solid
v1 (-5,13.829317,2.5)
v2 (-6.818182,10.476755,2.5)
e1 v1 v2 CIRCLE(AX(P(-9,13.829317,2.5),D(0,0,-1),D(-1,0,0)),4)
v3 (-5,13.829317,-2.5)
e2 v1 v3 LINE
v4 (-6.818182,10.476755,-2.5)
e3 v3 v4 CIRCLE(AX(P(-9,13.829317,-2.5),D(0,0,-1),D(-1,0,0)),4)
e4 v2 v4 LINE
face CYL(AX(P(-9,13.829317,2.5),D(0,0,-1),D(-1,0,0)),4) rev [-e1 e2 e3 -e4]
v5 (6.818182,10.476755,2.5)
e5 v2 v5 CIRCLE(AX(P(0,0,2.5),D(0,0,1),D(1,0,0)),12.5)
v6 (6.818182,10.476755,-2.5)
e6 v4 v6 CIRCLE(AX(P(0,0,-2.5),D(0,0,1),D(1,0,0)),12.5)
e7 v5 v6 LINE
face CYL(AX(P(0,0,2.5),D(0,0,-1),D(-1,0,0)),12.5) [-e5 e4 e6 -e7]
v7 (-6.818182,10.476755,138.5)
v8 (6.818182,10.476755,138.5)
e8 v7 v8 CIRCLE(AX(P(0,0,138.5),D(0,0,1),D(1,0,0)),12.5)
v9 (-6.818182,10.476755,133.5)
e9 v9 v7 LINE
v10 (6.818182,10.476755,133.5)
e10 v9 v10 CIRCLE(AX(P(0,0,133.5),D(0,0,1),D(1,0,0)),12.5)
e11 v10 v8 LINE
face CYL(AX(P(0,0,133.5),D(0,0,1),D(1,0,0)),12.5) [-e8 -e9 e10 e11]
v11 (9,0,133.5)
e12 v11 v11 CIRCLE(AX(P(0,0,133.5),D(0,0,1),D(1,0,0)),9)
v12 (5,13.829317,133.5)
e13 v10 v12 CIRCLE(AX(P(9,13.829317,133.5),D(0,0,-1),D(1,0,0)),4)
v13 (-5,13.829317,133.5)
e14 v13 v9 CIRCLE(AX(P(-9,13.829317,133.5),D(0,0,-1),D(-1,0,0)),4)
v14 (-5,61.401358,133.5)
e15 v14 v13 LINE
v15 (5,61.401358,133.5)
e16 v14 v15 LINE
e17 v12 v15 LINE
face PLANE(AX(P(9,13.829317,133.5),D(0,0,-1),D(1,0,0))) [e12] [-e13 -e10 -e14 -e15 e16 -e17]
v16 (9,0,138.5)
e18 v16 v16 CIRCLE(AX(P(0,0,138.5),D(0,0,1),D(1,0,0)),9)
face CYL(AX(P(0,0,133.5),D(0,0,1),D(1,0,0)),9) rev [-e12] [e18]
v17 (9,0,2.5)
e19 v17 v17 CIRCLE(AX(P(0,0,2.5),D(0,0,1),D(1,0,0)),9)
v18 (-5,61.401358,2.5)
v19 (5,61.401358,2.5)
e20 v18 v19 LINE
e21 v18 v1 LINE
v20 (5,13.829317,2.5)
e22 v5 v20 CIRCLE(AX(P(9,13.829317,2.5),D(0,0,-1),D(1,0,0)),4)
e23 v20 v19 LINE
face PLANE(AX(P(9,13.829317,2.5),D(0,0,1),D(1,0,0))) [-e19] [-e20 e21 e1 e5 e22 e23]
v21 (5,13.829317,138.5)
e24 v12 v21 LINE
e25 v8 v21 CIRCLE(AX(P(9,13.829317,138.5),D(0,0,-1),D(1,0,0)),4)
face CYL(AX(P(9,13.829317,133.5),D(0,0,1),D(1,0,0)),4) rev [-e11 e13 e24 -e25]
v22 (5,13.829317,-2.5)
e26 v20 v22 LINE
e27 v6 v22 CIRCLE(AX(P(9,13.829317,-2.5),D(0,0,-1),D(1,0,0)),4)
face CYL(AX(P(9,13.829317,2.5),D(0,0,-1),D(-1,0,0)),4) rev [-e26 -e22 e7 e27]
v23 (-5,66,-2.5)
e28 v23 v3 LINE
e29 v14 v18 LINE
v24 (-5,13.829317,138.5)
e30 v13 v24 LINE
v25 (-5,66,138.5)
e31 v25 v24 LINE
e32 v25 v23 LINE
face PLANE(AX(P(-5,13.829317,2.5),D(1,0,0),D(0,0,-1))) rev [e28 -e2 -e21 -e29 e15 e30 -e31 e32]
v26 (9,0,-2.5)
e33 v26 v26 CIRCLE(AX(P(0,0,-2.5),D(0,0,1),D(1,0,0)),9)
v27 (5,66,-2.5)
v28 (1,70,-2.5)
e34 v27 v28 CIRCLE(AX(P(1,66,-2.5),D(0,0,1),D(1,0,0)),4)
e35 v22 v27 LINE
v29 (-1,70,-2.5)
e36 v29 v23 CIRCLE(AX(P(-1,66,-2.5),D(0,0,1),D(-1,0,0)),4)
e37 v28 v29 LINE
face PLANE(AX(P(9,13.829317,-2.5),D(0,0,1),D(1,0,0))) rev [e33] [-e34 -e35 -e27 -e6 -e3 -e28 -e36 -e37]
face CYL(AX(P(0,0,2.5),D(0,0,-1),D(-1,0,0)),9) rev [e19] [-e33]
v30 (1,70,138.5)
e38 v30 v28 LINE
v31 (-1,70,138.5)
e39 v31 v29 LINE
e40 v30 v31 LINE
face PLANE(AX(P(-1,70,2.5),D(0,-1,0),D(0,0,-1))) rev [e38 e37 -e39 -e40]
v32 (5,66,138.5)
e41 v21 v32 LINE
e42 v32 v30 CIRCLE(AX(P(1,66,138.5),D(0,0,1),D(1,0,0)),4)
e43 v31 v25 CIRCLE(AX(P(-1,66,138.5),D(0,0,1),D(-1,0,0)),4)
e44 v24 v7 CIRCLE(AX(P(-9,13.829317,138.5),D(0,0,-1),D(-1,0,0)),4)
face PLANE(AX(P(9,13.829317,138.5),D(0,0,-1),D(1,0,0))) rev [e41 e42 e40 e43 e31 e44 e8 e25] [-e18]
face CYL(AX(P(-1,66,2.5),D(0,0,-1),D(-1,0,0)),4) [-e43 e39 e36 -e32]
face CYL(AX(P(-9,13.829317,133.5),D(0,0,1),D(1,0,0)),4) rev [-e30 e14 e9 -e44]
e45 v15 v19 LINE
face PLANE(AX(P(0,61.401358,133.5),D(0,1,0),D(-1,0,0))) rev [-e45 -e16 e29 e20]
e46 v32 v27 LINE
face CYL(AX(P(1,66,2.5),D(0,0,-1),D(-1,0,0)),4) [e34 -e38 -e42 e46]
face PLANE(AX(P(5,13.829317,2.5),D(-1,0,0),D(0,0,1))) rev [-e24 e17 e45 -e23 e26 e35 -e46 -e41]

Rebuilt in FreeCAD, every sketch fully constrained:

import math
import FreeCAD as App
import Part
import Sketcher
from FreeCAD import Vector

doc = App.newDocument("Part")
params = doc.addObject("Spreadsheet::Sheet", "Params")
for row, (alias, value) in enumerate([
    ("sketch1_diameter", "18 mm"),
    ("sketch1_radius", "4 mm"),
    ("sketch1_radius2", "12.5 mm"),
    ("sketch1_width", "2 mm"),
    ("pad1_length", "5 mm"),
    ("sketch2_radius", "4 mm"),
    ("sketch2_width", "10 mm"),
    ("pad2_length", "131 mm"),
], start=1):
    params.set(f"A{row}", alias)
    params.set(f"B{row}", "=" + value)
    params.setAlias(f"B{row}", alias)

body = doc.addObject("PartDesign::Body", "Body")

# Sketch on XY plane
sketch1 = body.newObject("Sketcher::SketchObject", "Sketch")
sketch1.AttachmentSupport = (doc.getObject("XY_Plane"), [""])
sketch1.MapMode = "FlatFace"
sketch1.addGeometry(Part.LineSegment(Vector(-5, 66, 0), Vector(-5, 13.829317, 0)), False)
sketch1.addGeometry(Part.ArcOfCircle(Part.Circle(Vector(-9, 13.829317, 0), Vector(0, 0, 1), 4), math.radians(-56.944269), math.radians(0)), False)
sketch1.addGeometry(Part.ArcOfCircle(Part.Circle(Vector(0, 0, 0), Vector(0, 0, 1), 12.5), math.radians(123.055731), math.radians(416.944269)), False)
sketch1.addGeometry(Part.ArcOfCircle(Part.Circle(Vector(9, 13.829317, 0), Vector(0, 0, 1), 4), math.radians(180), math.radians(236.944269)), False)
sketch1.addGeometry(Part.LineSegment(Vector(5, 13.829317, 0), Vector(5, 66, 0)), False)
sketch1.addGeometry(Part.ArcOfCircle(Part.Circle(Vector(1, 66, 0), Vector(0, 0, 1), 4), math.radians(0), math.radians(90)), False)
sketch1.addGeometry(Part.LineSegment(Vector(1, 70, 0), Vector(-1, 70, 0)), False)
sketch1.addGeometry(Part.ArcOfCircle(Part.Circle(Vector(-1, 66, 0), Vector(0, 0, 1), 4), math.radians(90), math.radians(180)), False)
sketch1.addGeometry(Part.Circle(Vector(0, 0, 0), Vector(0, 0, 1), 9), False)
sketch1.addConstraint(Sketcher.Constraint("Tangent", 0, 2, 1, 2))
sketch1.addConstraint(Sketcher.Constraint("Tangent", 1, 1, 2, 1))
sketch1.addConstraint(Sketcher.Constraint("Tangent", 2, 2, 3, 2))
sketch1.addConstraint(Sketcher.Constraint("Tangent", 3, 1, 4, 1))
sketch1.addConstraint(Sketcher.Constraint("Tangent", 4, 2, 5, 1))
sketch1.addConstraint(Sketcher.Constraint("Tangent", 5, 2, 6, 1))
sketch1.addConstraint(Sketcher.Constraint("Tangent", 6, 2, 7, 1))
sketch1.addConstraint(Sketcher.Constraint("Tangent", 7, 2, 0, 1))
sketch1.addConstraint(Sketcher.Constraint("Vertical", 0))
sketch1.addConstraint(Sketcher.Constraint("Vertical", 4))
sketch1.addConstraint(Sketcher.Constraint("Horizontal", 6))
sketch1.addConstraint(Sketcher.Constraint("Coincident", 2, 3, -1, 1))
sketch1.addConstraint(Sketcher.Constraint("Coincident", 8, 3, -1, 1))
sketch1.addConstraint(Sketcher.Constraint("Equal", 1, 3))
sketch1.addConstraint(Sketcher.Constraint("Equal", 3, 5))
sketch1.addConstraint(Sketcher.Constraint("Equal", 5, 7))
sketch1.addConstraint(Sketcher.Constraint("Horizontal", 1, 3, 3, 3))
sketch1.addConstraint(Sketcher.Constraint("Diameter", 8, 18.0))
sketch1.addConstraint(Sketcher.Constraint("Radius", 1, 4.0))
sketch1.addConstraint(Sketcher.Constraint("Radius", 2, 12.5))
sketch1.addConstraint(Sketcher.Constraint("DistanceX", 6, 2, 6, 1, 2.0))
sketch1.addConstraint(Sketcher.Constraint("DistanceY", -1, 1, 5, 3, 66.0))
sketch1.setExpression("Constraints[17]", "Params.sketch1_diameter")
sketch1.setExpression("Constraints[18]", "Params.sketch1_radius")
sketch1.setExpression("Constraints[19]", "Params.sketch1_radius2")
sketch1.setExpression("Constraints[20]", "Params.sketch1_width")
pad1 = body.newObject("PartDesign::Pad", "Pad")
pad1.Profile = sketch1
pad1.setExpression("Length", "Params.pad1_length")
pad1.Midplane = True

# Sketch on XY plane
sketch2 = body.newObject("Sketcher::SketchObject", "Sketch001")
sketch2.AttachmentSupport = (doc.getObject("XY_Plane"), [""])
sketch2.MapMode = "FlatFace"
sketch2.AttachmentOffset = App.Placement(Vector(0, 0, 133.5), App.Rotation())
sketch2.addGeometry(Part.LineSegment(Vector(-5, 66, 0), Vector(-5, 61.401358, 0)), False)
sketch2.addGeometry(Part.LineSegment(Vector(-5, 61.401358, 0), Vector(5, 61.401358, 0)), False)
sketch2.addGeometry(Part.LineSegment(Vector(5, 61.401358, 0), Vector(5, 66, 0)), False)
sketch2.addGeometry(Part.ArcOfCircle(Part.Circle(Vector(1, 66, 0), Vector(0, 0, 1), 4), math.radians(0), math.radians(90)), False)
sketch2.addGeometry(Part.LineSegment(Vector(1, 70, 0), Vector(-1, 70, 0)), False)
sketch2.addGeometry(Part.ArcOfCircle(Part.Circle(Vector(-1, 66, 0), Vector(0, 0, 1), 4), math.radians(90), math.radians(180)), False)
sketch2.addConstraint(Sketcher.Constraint("Coincident", 0, 2, 1, 1))
sketch2.addConstraint(Sketcher.Constraint("Coincident", 1, 2, 2, 1))
sketch2.addConstraint(Sketcher.Constraint("Tangent", 2, 2, 3, 1))
sketch2.addConstraint(Sketcher.Constraint("Tangent", 3, 2, 4, 1))
sketch2.addConstraint(Sketcher.Constraint("Tangent", 4, 2, 5, 1))
sketch2.addConstraint(Sketcher.Constraint("Tangent", 5, 2, 0, 1))
sketch2.addConstraint(Sketcher.Constraint("Vertical", 0))
sketch2.addConstraint(Sketcher.Constraint("Horizontal", 1))
sketch2.addConstraint(Sketcher.Constraint("Vertical", 2))
sketch2.addConstraint(Sketcher.Constraint("Horizontal", 4))
sketch2.addConstraint(Sketcher.Constraint("Equal", 3, 5))
sketch2.addConstraint(Sketcher.Constraint("Radius", 3, 4.0))
sketch2.addConstraint(Sketcher.Constraint("DistanceX", 1, 1, 1, 2, 10.0))
sketch2.addConstraint(Sketcher.Constraint("DistanceX", -1, 1, 3, 3, 1.0))
sketch2.addConstraint(Sketcher.Constraint("DistanceY", -1, 1, 3, 3, 66.0))
sketch2.addConstraint(Sketcher.Constraint("DistanceY", 0, 2, 0, 1, 4.598642))
sketch2.setExpression("Constraints[11]", "Params.sketch2_radius")
sketch2.setExpression("Constraints[12]", "Params.sketch2_width")
pad2 = body.newObject("PartDesign::Pad", "Pad001")
pad2.Profile = sketch2
pad2.setExpression("Length", "Params.pad2_length")
pad2.Reversed = True
doc.recompute()

datumplane = body.newObject("PartDesign::Plane", "DatumPlane")
datumplane.AttachmentSupport = (doc.getObject("XY_Plane"), [""])
datumplane.MapMode = "FlatFace"
datumplane.AttachmentOffset = App.Placement(Vector(0, 0, 68), App.Rotation())
mirrored = body.newObject("PartDesign::Mirrored", "Mirrored")
mirrored.Originals = [pad1]
mirrored.MirrorPlane = (datumplane, [""])
body.Tip = mirrored

doc.recompute()
